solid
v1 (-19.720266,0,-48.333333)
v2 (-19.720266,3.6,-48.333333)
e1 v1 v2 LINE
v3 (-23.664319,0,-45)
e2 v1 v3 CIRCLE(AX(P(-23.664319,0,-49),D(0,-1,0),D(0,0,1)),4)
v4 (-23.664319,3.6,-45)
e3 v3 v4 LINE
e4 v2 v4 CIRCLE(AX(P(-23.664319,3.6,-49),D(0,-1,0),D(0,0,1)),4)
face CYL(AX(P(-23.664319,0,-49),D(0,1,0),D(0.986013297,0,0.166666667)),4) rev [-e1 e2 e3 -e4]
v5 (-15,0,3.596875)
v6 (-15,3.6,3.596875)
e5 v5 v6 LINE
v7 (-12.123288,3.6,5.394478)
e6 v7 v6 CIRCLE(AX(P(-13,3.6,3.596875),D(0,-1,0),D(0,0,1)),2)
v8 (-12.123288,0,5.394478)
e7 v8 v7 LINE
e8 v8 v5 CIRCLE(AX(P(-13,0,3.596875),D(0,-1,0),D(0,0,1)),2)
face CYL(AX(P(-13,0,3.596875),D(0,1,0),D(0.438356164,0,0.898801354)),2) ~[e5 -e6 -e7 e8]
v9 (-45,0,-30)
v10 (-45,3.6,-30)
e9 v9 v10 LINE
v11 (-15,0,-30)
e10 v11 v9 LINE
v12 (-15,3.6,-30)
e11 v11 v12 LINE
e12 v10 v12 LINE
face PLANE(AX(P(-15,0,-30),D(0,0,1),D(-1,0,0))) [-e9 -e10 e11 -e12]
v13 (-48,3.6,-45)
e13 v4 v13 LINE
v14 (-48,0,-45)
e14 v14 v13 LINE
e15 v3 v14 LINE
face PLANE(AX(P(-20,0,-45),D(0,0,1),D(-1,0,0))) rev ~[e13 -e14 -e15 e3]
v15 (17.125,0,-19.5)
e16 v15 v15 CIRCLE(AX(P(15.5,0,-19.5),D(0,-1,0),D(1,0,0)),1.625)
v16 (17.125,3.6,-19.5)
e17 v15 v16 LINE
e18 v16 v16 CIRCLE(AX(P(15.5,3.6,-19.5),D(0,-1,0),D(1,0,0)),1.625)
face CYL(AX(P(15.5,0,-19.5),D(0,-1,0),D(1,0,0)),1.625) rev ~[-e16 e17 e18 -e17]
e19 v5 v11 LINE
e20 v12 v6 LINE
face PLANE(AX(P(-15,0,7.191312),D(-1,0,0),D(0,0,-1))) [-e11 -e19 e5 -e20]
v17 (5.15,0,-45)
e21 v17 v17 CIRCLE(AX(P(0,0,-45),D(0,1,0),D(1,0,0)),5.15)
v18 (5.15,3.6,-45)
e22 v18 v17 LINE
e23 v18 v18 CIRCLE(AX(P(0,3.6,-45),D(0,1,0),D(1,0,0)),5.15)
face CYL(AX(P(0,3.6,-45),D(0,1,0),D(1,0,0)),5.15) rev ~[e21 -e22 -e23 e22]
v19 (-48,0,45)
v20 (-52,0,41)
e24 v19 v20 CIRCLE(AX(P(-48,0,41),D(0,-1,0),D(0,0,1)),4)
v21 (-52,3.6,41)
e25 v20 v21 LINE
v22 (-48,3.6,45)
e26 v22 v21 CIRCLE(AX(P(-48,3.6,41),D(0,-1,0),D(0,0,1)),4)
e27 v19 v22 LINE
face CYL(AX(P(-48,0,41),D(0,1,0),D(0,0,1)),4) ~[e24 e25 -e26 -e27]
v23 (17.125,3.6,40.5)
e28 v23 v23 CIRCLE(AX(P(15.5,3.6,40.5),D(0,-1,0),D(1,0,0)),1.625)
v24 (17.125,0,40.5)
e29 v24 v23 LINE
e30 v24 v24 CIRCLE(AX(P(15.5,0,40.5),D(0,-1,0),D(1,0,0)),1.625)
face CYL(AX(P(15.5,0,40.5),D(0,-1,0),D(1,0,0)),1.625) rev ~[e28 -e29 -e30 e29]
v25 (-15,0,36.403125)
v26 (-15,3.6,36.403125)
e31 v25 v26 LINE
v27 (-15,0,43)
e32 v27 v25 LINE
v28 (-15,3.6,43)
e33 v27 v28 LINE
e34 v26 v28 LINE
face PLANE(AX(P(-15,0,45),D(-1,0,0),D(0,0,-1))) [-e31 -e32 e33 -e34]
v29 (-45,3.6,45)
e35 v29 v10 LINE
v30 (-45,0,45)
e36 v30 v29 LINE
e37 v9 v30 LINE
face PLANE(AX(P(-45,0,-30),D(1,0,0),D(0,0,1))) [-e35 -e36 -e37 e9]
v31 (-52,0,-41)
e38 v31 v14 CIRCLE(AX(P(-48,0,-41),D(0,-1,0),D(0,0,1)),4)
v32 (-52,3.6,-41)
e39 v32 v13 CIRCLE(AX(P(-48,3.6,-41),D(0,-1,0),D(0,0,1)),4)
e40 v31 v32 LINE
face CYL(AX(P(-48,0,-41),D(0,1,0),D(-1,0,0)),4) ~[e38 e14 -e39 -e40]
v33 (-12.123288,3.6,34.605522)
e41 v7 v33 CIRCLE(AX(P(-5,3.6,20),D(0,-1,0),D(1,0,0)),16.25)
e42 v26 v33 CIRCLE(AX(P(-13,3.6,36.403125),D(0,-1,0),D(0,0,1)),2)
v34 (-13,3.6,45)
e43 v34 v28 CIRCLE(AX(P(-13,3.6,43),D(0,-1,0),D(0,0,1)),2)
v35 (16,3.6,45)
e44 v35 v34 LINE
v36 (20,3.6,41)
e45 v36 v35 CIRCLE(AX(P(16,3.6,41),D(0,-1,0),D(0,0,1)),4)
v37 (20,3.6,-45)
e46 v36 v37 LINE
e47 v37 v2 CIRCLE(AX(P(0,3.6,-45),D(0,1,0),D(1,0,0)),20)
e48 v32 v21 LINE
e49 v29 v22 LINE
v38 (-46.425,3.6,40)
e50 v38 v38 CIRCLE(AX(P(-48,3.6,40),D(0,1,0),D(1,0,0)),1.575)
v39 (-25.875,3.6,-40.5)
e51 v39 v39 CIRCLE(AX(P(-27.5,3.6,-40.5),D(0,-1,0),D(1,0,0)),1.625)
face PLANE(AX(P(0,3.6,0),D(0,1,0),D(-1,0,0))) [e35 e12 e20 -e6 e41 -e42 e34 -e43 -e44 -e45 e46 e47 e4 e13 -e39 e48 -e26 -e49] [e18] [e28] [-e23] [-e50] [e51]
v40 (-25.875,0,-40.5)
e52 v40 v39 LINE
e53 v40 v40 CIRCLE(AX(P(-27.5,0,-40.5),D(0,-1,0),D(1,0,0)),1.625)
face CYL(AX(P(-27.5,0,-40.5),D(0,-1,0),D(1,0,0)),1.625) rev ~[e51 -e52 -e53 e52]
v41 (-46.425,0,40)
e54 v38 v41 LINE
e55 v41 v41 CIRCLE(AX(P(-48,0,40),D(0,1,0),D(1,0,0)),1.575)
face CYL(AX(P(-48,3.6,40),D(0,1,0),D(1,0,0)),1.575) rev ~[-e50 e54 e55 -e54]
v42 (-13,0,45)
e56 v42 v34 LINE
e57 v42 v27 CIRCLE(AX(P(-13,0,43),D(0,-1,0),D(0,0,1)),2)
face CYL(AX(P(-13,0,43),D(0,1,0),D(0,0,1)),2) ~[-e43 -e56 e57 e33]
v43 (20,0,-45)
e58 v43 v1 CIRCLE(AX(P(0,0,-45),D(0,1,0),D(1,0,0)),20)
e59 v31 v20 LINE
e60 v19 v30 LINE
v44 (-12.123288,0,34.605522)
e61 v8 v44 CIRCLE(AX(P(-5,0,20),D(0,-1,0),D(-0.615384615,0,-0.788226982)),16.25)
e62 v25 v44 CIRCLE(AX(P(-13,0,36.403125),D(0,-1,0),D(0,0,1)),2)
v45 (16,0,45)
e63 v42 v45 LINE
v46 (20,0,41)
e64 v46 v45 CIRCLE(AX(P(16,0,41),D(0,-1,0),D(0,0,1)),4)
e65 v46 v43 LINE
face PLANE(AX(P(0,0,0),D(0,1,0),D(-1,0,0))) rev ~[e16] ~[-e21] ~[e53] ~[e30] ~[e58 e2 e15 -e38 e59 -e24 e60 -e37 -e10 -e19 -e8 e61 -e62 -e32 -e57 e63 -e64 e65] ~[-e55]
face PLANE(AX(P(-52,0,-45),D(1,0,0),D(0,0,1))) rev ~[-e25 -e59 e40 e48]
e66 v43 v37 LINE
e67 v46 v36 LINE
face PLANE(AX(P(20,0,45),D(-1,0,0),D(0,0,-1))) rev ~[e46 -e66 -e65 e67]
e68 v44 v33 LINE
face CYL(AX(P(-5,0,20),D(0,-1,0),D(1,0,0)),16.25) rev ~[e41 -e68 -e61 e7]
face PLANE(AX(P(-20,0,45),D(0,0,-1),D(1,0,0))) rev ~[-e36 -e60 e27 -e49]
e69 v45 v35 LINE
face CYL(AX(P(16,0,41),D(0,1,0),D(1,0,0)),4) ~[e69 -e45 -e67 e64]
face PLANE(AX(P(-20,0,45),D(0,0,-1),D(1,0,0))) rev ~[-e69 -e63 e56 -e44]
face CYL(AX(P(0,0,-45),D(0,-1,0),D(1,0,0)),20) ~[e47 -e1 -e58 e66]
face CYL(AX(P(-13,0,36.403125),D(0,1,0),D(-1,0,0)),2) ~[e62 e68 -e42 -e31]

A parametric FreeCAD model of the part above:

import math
import FreeCAD as App
import Part
import Sketcher

V = App.Vector


def edges_at(feature, points):
    """Names of the edges that pass closest to the given points."""
    edges = feature.Shape.Edges
    near = lambda p: min(range(len(edges)), key=lambda i: edges[i].distToShape(Part.Vertex(*p))[0])
    return sorted({f"Edge{near(p) + 1}" for p in points})

doc = App.newDocument("Part")
params = doc.addObject("Spreadsheet::Sheet", "Params")
for row, (alias, value) in enumerate([
    ("sketch1_radius", "20 mm"),
    ("sketch1_width", "32 mm"),
    ("sketch1_height", "90 mm"),
    ("pad1_length", "3.6 mm"),
    ("sketch2_diameter", "10.3 mm"),
    ("pocket1_length", "3.6 mm"),
    ("fillet_radius", "4 mm"),
    ("sketch3_width", "30 mm"),
    ("sketch3_height", "75 mm"),
    ("sketch3_radius", "16.25 mm"),
    ("pocket2_length", "10 mm"),
    ("fillet2_radius", "2 mm"),
    ("sketch4_diameter", "3.25 mm"),
    ("pocket3_length", "10 mm"),
    ("sketch5_diameter", "3.15 mm"),
    ("pocket4_length", "10 mm"),
], start=1):
    params.set(f"A{row}", alias)
    params.set(f"B{row}", "=" + value)
    params.setAlias(f"B{row}", alias)

body = doc.addObject("PartDesign::Body", "Body")

sketch1 = body.newObject("Sketcher::SketchObject", "Sketch")
sketch1.AttachmentSupport = (doc.getObject("XZ_Plane"), [""])
sketch1.MapMode = "FlatFace"
sketch1.addGeometry(Part.LineSegment(V(20, 45, 0), V(20, -45, 0)), False)
sketch1.addGeometry(Part.ArcOfCircle(Part.Circle(V(0, -45, 0), V(0, 0, 1), 20), math.radians(180), math.radians(360)), False)
sketch1.addGeometry(Part.LineSegment(V(-20, -45, 0), V(-52, -45, 0)), False)
sketch1.addGeometry(Part.LineSegment(V(-52, -45, 0), V(-52, 45, 0)), False)
sketch1.addGeometry(Part.LineSegment(V(-52, 45, 0), V(20, 45, 0)), False)
sketch1.addConstraint(Sketcher.Constraint("Tangent", 0, 2, 1, 2))
sketch1.addConstraint(Sketcher.Constraint("Coincident", 1, 1, 2, 1))
sketch1.addConstraint(Sketcher.Constraint("Coincident", 2, 2, 3, 1))
sketch1.addConstraint(Sketcher.Constraint("Coincident", 3, 2, 4, 1))
sketch1.addConstraint(Sketcher.Constraint("Coincident", 4, 2, 0, 1))
sketch1.addConstraint(Sketcher.Constraint("Vertical", 0))
sketch1.addConstraint(Sketcher.Constraint("Horizontal", 2))
sketch1.addConstraint(Sketcher.Constraint("Vertical", 3))
sketch1.addConstraint(Sketcher.Constraint("Horizontal", 4))
sketch1.addConstraint(Sketcher.Constraint("Symmetric", 1, 1, 4, 2, -1, 1))
sketch1.addConstraint(Sketcher.Constraint("Horizontal", 0, 2, 1, 1))
sketch1.addConstraint(Sketcher.Constraint("Radius", 1, 20.0))
sketch1.addConstraint(Sketcher.Constraint("DistanceX", 2, 2, 2, 1, 32.0))
sketch1.addConstraint(Sketcher.Constraint("DistanceY", 0, 2, 0, 1, 90.0))
sketch1.setExpression("Constraints[11]", "Params.sketch1_radius")
sketch1.setExpression("Constraints[12]", "Params.sketch1_width")
sketch1.setExpression("Constraints[13]", "Params.sketch1_height")
pad1 = body.newObject("PartDesign::Pad", "Pad")
pad1.Profile = sketch1
pad1.setExpression("Length", "Params.pad1_length")
pad1.Reversed = True

sketch2 = body.newObject("Sketcher::SketchObject", "Sketch001")
sketch2.AttachmentSupport = (doc.getObject("XZ_Plane"), [""])
sketch2.MapMode = "FlatFace"
sketch2.AttachmentOffset = App.Placement(V(0, 0, -3.6), App.Rotation())
sketch2.addGeometry(Part.Circle(V(0, -45, 0), V(0, 0, 1), 5), False)
sketch2.addConstraint(Sketcher.Constraint("PointOnObject", 0, 3, -2))
sketch2.addConstraint(Sketcher.Constraint("Diameter", 0, 10.3))
sketch2.addConstraint(Sketcher.Constraint("DistanceY", 0, 3, -1, 1, 45.0))
sketch2.setExpression("Constraints[1]", "Params.sketch2_diameter")
pocket1 = body.newObject("PartDesign::Pocket", "Pocket")
pocket1.Profile = sketch2
pocket1.setExpression("Length", "Params.pocket1_length")
pocket1.Reversed = True
doc.recompute()

fillet = body.newObject("PartDesign::Fillet", "Fillet")
fillet.Base = (pocket1, edges_at(pocket1, [
    (-20, 1.8, -45),
    (-52, 1.8, -45),
    (-52, 1.8, 45),
    (20, 1.8, 45),
]))
fillet.setExpression("Radius", "Params.fillet_radius")

sketch3 = body.newObject("Sketcher::SketchObject", "Sketch002")
sketch3.AttachmentSupport = (doc.getObject("XZ_Plane"), [""])
sketch3.MapMode = "FlatFace"
sketch3.addGeometry(Part.LineSegment(V(-15, 45, 0), V(-45, 45, 0)), False)
sketch3.addGeometry(Part.LineSegment(V(-45, 45, 0), V(-45, -30, 0)), False)
sketch3.addGeometry(Part.LineSegment(V(-45, -30, 0), V(-15, -30, 0)), False)
sketch3.addGeometry(Part.LineSegment(V(-15, -30, 0), V(-15, 7, 0)), False)
sketch3.addGeometry(Part.ArcOfCircle(Part.Circle(V(-5, 20, 0), V(0, 0, 1), 16), math.radians(-128), math.radians(128)), False)
sketch3.addGeometry(Part.LineSegment(V(-15, 33, 0), V(-15, 45, 0)), False)
sketch3.addConstraint(Sketcher.Constraint("Coincident", 0, 2, 1, 1))
sketch3.addConstraint(Sketcher.Constraint("Coincident", 1, 2, 2, 1))
sketch3.addConstraint(Sketcher.Constraint("Coincident", 2, 2, 3, 1))
sketch3.addConstraint(Sketcher.Constraint("Coincident", 3, 2, 4, 1))
sketch3.addConstraint(Sketcher.Constraint("Coincident", 4, 2, 5, 1))
sketch3.addConstraint(Sketcher.Constraint("Coincident", 5, 2, 0, 1))
sketch3.addConstraint(Sketcher.Constraint("Horizontal", 0))
sketch3.addConstraint(Sketcher.Constraint("Vertical", 1))
sketch3.addConstraint(Sketcher.Constraint("Horizontal", 2))
sketch3.addConstraint(Sketcher.Constraint("Vertical", 3))
sketch3.addConstraint(Sketcher.Constraint("Vertical", 5))
sketch3.addConstraint(Sketcher.Constraint("Vertical", 3, 2, 4, 2))
sketch3.addConstraint(Sketcher.Constraint("DistanceX", 0, 2, 0, 1, 30.0))
sketch3.addConstraint(Sketcher.Constraint("DistanceY", 1, 2, 1, 1, 75.0))
sketch3.addConstraint(Sketcher.Constraint("Radius", 4, 16.25))
sketch3.addConstraint(Sketcher.Constraint("DistanceY", 1, 2, -1, 1, 30.0))
sketch3.addConstraint(Sketcher.Constraint("DistanceY", 4, 3, 0, 2, 25.0))
sketch3.addConstraint(Sketcher.Constraint("DistanceX", 4, 3, -1, 1, 5.0))
sketch3.addConstraint(Sketcher.Constraint("DistanceX", 0, 2, -1, 1, 45.0))
sketch3.setExpression("Constraints[12]", "Params.sketch3_width")
sketch3.setExpression("Constraints[13]", "Params.sketch3_height")
sketch3.setExpression("Constraints[14]", "Params.sketch3_radius")
pocket2 = body.newObject("PartDesign::Pocket", "Pocket001")
pocket2.Profile = sketch3
pocket2.setExpression("Length", "Params.pocket2_length")
doc.recompute()

fillet2 = body.newObject("PartDesign::Fillet", "Fillet001")
fillet2.Base = (pocket2, edges_at(pocket2, [(-15, 1.8, 45), (-15, 1.8, 32.809), (-15, 1.8, 7.191)]))
fillet2.setExpression("Radius", "Params.fillet2_radius")

sketch4 = body.newObject("Sketcher::SketchObject", "Sketch003")
sketch4.AttachmentSupport = (doc.getObject("XZ_Plane"), [""])
sketch4.MapMode = "FlatFace"
sketch4.addGeometry(Part.Circle(V(-27.5, -40.5, 0), V(0, 0, 1), 1.6), False)
sketch4.addGeometry(Part.Circle(V(15.5, 40.5, 0), V(0, 0, 1), 1.6), False)
sketch4.addGeometry(Part.Circle(V(15.5, -19.5, 0), V(0, 0, 1), 1.6), False)
sketch4.addConstraint(Sketcher.Constraint("Equal", 0, 1))
sketch4.addConstraint(Sketcher.Constraint("Equal", 1, 2))
sketch4.addConstraint(Sketcher.Constraint("Vertical", 1, 3, 2, 3))
sketch4.addConstraint(Sketcher.Constraint("Diameter", 0, 3.25))
sketch4.addConstraint(Sketcher.Constraint("DistanceY", 2, 3, 1, 3, 60.0))
sketch4.addConstraint(Sketcher.Constraint("DistanceX", 0, 3, 1, 3, 43.0))
sketch4.addConstraint(Sketcher.Constraint("DistanceY", 0, 3, 1, 3, 81.0))
sketch4.addConstraint(Sketcher.Constraint("DistanceX", 0, 3, -1, 1, 27.5))
sketch4.addConstraint(Sketcher.Constraint("DistanceY", 0, 3, -1, 1, 40.5))
sketch4.setExpression("Constraints[3]", "Params.sketch4_diameter")
pocket3 = body.newObject("PartDesign::Pocket", "Pocket002")
pocket3.Profile = sketch4
pocket3.setExpression("Length", "Params.pocket3_length")

sketch5 = body.newObject("Sketcher::SketchObject", "Sketch004")
sketch5.AttachmentSupport = (doc.getObject("XZ_Plane"), [""])
sketch5.MapMode = "FlatFace"
sketch5.AttachmentOffset = App.Placement(V(0, 0, -3.6), App.Rotation())
sketch5.addGeometry(Part.Circle(V(-48, 40, 0), V(0, 0, 1), 1.6), False)
sketch5.addConstraint(Sketcher.Constraint("Diameter", 0, 3.15))
sketch5.addConstraint(Sketcher.Constraint("DistanceX", 0, 3, -1, 1, 48.0))
sketch5.addConstraint(Sketcher.Constraint("DistanceY", -1, 1, 0, 3, 40.0))
sketch5.setExpression("Constraints[0]", "Params.sketch5_diameter")
pocket4 = body.newObject("PartDesign::Pocket", "Pocket003")
pocket4.Profile = sketch5
pocket4.setExpression("Length", "Params.pocket4_length")
pocket4.Reversed = True

doc.recompute()
